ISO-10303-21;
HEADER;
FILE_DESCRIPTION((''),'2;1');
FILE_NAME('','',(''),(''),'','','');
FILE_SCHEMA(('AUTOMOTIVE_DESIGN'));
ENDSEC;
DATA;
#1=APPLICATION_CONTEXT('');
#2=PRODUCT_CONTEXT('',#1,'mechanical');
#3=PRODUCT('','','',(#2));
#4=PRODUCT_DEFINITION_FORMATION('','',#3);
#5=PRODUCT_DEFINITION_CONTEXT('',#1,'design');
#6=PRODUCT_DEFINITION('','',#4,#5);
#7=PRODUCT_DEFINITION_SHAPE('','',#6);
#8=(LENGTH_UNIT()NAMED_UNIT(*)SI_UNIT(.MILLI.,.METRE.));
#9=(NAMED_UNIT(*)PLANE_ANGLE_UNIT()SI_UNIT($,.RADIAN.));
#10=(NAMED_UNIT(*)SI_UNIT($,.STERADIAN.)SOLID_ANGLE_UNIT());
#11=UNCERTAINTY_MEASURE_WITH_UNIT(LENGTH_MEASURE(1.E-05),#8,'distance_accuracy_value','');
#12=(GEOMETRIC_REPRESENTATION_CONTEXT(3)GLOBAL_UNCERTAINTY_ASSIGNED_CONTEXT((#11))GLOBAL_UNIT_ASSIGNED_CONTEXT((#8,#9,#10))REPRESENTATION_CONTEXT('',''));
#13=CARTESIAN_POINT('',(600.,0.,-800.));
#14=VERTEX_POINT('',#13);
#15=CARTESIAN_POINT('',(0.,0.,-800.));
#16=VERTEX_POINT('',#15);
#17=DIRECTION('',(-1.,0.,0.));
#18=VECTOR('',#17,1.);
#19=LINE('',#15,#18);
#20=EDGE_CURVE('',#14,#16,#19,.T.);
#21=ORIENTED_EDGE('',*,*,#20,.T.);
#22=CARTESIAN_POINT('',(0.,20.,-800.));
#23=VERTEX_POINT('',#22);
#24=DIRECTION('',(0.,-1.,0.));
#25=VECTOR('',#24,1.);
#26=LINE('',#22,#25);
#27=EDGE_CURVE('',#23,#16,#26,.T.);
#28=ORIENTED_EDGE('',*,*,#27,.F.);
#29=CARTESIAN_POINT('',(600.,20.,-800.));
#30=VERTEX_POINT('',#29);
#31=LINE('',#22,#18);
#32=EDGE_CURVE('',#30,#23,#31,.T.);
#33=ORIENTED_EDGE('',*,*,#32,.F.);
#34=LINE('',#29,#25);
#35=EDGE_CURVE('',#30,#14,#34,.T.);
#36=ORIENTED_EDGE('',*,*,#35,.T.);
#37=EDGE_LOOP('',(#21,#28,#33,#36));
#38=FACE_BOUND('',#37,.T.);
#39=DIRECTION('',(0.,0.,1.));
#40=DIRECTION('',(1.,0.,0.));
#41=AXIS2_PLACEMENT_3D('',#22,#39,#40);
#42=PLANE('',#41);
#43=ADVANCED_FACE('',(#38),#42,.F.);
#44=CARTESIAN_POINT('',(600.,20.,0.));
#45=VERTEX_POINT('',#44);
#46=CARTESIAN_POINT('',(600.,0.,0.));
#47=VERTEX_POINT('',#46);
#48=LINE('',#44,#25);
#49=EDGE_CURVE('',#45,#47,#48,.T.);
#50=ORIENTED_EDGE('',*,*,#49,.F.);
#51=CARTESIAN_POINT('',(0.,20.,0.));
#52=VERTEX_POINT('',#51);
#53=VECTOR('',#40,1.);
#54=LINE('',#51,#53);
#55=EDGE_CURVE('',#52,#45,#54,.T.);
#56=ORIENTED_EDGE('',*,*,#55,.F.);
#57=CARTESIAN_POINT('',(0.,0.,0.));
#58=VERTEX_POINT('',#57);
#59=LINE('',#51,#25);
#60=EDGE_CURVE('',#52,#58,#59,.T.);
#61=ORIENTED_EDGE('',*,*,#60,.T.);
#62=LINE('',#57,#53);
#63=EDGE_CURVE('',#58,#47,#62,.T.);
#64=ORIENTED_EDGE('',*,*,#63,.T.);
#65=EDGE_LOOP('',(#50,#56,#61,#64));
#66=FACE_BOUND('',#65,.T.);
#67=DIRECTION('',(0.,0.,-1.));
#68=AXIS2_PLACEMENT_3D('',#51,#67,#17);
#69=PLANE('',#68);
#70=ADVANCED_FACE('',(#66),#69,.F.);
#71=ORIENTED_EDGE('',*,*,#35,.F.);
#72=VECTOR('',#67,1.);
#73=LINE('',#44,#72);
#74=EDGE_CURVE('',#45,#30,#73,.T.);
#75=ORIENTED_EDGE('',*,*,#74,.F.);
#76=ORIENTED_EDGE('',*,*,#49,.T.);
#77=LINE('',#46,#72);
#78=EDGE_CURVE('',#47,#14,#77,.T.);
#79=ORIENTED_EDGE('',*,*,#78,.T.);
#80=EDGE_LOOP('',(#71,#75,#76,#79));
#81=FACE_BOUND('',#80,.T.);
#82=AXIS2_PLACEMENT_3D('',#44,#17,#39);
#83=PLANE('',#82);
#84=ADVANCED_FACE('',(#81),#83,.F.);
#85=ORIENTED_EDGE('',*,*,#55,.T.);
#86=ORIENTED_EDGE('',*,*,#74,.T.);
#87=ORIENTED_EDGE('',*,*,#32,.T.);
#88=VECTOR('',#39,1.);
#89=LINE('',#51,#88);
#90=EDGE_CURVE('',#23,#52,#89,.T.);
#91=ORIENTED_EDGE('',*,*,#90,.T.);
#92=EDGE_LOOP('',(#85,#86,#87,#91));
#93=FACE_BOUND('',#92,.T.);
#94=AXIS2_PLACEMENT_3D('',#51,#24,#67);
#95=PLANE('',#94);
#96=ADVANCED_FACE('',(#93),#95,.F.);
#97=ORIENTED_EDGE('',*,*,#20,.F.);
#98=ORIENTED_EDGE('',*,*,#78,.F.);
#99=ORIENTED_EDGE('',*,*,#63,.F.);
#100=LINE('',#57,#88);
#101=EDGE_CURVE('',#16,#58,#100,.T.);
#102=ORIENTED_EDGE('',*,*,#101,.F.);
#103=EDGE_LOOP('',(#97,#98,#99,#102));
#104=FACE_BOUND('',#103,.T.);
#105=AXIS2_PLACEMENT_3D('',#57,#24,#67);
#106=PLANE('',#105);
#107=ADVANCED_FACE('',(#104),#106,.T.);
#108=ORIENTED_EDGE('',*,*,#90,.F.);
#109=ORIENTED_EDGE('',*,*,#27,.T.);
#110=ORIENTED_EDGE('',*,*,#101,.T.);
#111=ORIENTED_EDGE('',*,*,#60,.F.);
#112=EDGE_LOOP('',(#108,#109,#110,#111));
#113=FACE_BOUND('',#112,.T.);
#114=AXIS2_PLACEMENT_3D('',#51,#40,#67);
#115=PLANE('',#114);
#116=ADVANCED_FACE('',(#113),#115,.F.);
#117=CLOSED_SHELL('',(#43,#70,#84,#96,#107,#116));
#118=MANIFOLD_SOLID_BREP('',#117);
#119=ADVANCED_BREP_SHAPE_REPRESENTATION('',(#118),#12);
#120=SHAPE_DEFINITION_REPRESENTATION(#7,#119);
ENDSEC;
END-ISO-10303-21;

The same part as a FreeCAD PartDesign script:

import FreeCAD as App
import Part
import Sketcher

V = App.Vector
Q = App.Units.Quantity

doc = App.newDocument("Part")
body = doc.addObject("PartDesign::Body", "Body")

sketch1 = body.newObject("Sketcher::SketchObject", "Sketch")
sketch1.AttachmentSupport = (doc.getObject("XZ_Plane"), [""])
sketch1.MapMode = "FlatFace"
sketch1.addGeometry([
    Part.LineSegment(V(0, -800, 0), V(0, 0, 0)),
    Part.LineSegment(V(0, 0, 0), V(600, 0, 0)),
    Part.LineSegment(V(600, 0, 0), V(600, -800, 0)),
    Part.LineSegment(V(600, -800, 0), V(0, -800, 0)),
], False)
sketch1.addConstraint([
    Sketcher.Constraint("Coincident", 0, 2, 1, 1),
    Sketcher.Constraint("Coincident", 1, 2, 2, 1),
    Sketcher.Constraint("Coincident", 2, 2, 3, 1),
    Sketcher.Constraint("Coincident", 3, 2, 0, 1),
    Sketcher.Constraint("Vertical", 0),
    Sketcher.Constraint("Horizontal", 1),
    Sketcher.Constraint("Vertical", 2),
    Sketcher.Constraint("Horizontal", 3),
    Sketcher.Constraint("Coincident", 0, 2, -1, 1),
    Sketcher.Constraint("DistanceX", 1, 1, 1, 2, Q("600 mm")),
    Sketcher.Constraint("DistanceY", 0, 1, 0, 2, Q("800 mm")),
])
pad1 = body.newObject("PartDesign::Pad", "Pad")
pad1.Profile = sketch1
pad1.Length = 20
pad1.Reversed = True

doc.recompute()
